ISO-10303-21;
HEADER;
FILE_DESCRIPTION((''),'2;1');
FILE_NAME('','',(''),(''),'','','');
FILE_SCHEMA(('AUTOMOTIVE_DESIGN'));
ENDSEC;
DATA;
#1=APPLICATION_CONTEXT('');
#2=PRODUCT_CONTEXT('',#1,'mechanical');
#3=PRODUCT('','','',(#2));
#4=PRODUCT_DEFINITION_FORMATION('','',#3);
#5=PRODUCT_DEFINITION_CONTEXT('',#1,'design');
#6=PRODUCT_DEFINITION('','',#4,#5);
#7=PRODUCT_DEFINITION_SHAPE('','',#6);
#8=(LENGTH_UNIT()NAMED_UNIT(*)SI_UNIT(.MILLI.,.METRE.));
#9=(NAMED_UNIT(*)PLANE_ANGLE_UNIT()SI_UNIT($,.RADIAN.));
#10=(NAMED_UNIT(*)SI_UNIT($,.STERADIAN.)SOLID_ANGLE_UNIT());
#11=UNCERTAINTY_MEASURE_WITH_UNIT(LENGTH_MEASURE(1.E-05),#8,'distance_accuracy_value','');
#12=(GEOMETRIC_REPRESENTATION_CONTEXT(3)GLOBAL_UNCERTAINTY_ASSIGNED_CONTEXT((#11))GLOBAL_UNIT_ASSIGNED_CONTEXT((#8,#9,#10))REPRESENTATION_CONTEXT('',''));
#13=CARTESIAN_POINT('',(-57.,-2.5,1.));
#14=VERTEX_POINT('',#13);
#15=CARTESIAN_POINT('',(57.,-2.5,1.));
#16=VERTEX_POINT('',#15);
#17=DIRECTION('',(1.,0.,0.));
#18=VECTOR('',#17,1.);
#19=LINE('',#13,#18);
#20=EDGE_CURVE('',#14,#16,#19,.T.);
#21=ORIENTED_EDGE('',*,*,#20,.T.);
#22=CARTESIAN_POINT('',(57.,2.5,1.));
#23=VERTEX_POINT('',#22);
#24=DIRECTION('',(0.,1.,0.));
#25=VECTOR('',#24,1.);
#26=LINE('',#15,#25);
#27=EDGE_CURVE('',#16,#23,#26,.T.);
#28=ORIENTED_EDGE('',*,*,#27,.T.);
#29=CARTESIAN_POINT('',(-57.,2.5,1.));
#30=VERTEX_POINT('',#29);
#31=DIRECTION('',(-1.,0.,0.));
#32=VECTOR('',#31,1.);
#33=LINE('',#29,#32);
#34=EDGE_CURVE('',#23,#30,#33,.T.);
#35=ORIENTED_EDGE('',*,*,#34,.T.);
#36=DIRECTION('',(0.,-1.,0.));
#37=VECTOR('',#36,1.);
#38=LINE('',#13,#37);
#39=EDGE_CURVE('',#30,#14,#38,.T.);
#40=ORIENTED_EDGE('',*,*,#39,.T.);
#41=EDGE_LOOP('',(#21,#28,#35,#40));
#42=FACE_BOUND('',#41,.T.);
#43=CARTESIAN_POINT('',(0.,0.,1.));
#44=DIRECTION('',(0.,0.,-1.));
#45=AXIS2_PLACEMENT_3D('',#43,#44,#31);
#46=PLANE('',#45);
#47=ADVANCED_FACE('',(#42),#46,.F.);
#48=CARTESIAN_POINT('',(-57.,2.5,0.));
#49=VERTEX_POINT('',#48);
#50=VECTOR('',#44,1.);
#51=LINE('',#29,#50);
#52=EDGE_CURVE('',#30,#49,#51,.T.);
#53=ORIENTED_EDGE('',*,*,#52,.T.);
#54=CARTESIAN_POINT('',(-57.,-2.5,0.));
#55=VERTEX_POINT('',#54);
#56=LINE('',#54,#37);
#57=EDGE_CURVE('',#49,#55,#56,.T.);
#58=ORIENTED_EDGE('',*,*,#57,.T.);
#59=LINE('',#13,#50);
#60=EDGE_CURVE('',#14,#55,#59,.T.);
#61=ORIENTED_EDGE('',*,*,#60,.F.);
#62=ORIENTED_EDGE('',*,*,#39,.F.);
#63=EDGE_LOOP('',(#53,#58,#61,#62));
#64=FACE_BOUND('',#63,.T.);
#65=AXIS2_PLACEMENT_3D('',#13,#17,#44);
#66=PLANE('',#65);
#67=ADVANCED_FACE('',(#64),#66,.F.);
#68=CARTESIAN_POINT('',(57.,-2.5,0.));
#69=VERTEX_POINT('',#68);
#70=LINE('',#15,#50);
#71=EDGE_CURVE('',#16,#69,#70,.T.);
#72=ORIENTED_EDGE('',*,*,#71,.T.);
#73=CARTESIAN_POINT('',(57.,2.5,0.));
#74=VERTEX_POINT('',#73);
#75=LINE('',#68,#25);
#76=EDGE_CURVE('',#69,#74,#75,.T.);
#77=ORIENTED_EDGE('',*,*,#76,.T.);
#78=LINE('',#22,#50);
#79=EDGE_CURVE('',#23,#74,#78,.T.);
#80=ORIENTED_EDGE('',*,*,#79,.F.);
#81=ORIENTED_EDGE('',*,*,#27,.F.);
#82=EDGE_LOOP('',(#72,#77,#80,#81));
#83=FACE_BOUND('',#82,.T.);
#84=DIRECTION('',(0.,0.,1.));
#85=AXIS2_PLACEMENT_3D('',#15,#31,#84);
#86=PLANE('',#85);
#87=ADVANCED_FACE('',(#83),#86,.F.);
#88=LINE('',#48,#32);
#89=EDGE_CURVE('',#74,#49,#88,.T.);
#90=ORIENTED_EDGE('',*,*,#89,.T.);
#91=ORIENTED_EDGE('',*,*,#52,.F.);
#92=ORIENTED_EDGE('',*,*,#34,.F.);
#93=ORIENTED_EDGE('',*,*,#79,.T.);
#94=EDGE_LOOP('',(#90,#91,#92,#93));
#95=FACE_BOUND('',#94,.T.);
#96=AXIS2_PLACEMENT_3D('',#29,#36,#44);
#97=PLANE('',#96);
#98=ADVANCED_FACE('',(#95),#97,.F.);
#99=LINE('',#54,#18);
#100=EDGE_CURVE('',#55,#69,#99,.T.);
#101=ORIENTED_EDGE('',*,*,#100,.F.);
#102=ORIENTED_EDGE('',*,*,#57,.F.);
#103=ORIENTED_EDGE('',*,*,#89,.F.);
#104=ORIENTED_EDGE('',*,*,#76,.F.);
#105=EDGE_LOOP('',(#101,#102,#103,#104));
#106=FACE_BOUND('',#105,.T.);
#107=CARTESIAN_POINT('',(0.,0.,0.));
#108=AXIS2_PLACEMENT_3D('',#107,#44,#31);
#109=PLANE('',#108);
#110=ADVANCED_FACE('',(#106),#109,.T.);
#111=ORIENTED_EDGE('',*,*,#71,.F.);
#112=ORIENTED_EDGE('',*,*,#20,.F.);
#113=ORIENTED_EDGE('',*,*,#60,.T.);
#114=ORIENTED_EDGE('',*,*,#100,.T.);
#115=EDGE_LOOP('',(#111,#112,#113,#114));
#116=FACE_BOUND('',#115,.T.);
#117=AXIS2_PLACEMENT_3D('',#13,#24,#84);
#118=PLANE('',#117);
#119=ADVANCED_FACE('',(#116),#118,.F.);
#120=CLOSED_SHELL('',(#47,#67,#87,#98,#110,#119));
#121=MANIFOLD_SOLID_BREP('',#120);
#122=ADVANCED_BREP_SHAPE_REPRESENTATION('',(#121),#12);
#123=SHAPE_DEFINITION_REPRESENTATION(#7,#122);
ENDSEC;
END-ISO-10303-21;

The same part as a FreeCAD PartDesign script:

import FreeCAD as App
import Part
import Sketcher

V = App.Vector
Q = App.Units.Quantity


def add_polygon(sketch, points):
    """Adds a closed chain of lines whose ends are joined by coincident constraints."""
    first, n = sketch.GeometryCount, len(points)
    for a, b in zip(points, points[1:] + points[:1]):
        sketch.addGeometry(Part.LineSegment(App.Vector(*a, 0), App.Vector(*b, 0)), False)
    for i in range(n):
        sketch.addConstraint(Sketcher.Constraint("Coincident", first + i, 2, first + (i + 1) % n, 1))

doc = App.newDocument("Part")
body = doc.addObject("PartDesign::Body", "Body")

sketch1 = body.newObject("Sketcher::SketchObject", "Sketch")
sketch1.AttachmentSupport = (doc.getObject("XY_Plane"), [""])
sketch1.MapMode = "FlatFace"
add_polygon(sketch1, [(-57, 2), (-57, -2), (57, -2), (57, 2)])
sketch1.addConstraint([
    Sketcher.Constraint("Vertical", 0),
    Sketcher.Constraint("Horizontal", 1),
    Sketcher.Constraint("Vertical", 2),
    Sketcher.Constraint("Horizontal", 3),
    Sketcher.Constraint("Symmetric", 0, 2, 2, 2, -1, 1),
    Sketcher.Constraint("DistanceX", 1, 1, 1, 2, Q("114 mm")),
    Sketcher.Constraint("DistanceY", 0, 2, 0, 1, Q("5 mm")),
])
pad1 = body.newObject("PartDesign::Pad", "Pad")
pad1.Profile = sketch1
pad1.Length = 1

doc.recompute()
